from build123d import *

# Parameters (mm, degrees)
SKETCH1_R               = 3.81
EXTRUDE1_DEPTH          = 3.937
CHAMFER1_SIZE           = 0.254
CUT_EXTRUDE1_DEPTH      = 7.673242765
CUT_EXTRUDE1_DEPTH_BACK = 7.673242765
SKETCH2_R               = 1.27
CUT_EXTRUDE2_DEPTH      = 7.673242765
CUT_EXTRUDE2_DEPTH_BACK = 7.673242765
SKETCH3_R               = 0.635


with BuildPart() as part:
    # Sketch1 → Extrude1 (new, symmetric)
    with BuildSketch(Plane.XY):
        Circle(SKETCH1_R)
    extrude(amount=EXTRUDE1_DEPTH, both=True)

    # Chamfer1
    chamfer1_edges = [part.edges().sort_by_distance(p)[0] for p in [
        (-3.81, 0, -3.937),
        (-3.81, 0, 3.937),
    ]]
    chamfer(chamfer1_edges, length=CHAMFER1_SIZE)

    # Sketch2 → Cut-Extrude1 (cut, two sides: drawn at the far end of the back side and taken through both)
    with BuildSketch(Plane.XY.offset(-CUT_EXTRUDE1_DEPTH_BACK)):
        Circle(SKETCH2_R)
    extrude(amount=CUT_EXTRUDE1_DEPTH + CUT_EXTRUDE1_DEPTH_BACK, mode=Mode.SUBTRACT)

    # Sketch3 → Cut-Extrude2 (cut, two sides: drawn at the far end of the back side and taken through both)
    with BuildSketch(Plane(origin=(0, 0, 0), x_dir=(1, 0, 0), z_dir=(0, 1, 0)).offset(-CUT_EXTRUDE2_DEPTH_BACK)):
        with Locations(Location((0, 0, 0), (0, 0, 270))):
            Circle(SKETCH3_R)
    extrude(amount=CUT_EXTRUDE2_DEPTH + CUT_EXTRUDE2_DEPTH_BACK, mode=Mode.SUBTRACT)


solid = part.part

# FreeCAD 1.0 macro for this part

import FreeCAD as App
import Part
import Sketcher
from FreeCAD import Vector
Q = App.Units.Quantity


def edges_at(feature, points):
    """Names of the edges that pass closest to the given points."""
    edges = feature.Shape.Edges
    near = lambda p: min(range(len(edges)), key=lambda i: edges[i].distToShape(Part.Vertex(*p))[0])
    return sorted({f"Edge{near(p) + 1}" for p in points})

doc = App.newDocument("Part")
body = doc.addObject("PartDesign::Body", "Body")

# Sketch on XY plane
sketch1 = body.newObject("Sketcher::SketchObject", "Sketch")
sketch1.AttachmentSupport = (doc.getObject("XY_Plane"), [""])
sketch1.MapMode = "FlatFace"
sketch1.addGeometry(Part.Circle(Vector(0, 0, 0), Vector(0, 0, 1), 3.81), False)
sketch1.addConstraint([
    Sketcher.Constraint("Coincident", 0, 3, -1, 1),
    Sketcher.Constraint("Diameter", 0, Q("0.3 in")),
])
pad1 = body.newObject("PartDesign::Pad", "Pad")
pad1.Profile = sketch1
pad1.Length = Q("0.31 in")
pad1.Midplane = True
doc.recompute()

chamfer = body.newObject("PartDesign::Chamfer", "Chamfer")
chamfer.Base = (pad1, edges_at(pad1, [(-3.81, 0, -3.937), (-3.81, 0, 3.937)]))
chamfer.Size = Q("0.01 in")

# Sketch on XY plane
sketch2 = body.newObject("Sketcher::SketchObject", "Sketch001")
sketch2.AttachmentSupport = (doc.getObject("XY_Plane"), [""])
sketch2.MapMode = "FlatFace"
sketch2.addGeometry(Part.Circle(Vector(0, 0, 0), Vector(0, 0, 1), 1.27), False)
sketch2.addConstraint([
    Sketcher.Constraint("Coincident", 0, 3, -1, 1),
    Sketcher.Constraint("Diameter", 0, Q("0.1 in")),
])
pocket1 = body.newObject("PartDesign::Pocket", "Pocket")
pocket1.Profile = sketch2
pocket1.Type = "ThroughAll"
pocket1.Midplane = True

# Sketch on XZ plane
sketch3 = body.newObject("Sketcher::SketchObject", "Sketch002")
sketch3.AttachmentSupport = (doc.getObject("XZ_Plane"), [""])
sketch3.MapMode = "FlatFace"
sketch3.addGeometry(Part.Circle(Vector(0, 0, 0), Vector(0, 0, 1), 0.635), False)
sketch3.addConstraint([
    Sketcher.Constraint("Coincident", 0, 3, -1, 1),
    Sketcher.Constraint("Diameter", 0, Q("0.05 in")),
])
pocket2 = body.newObject("PartDesign::Pocket", "Pocket001")
pocket2.Profile = sketch3
pocket2.Type = "ThroughAll"
pocket2.Midplane = True

doc.recompute()
